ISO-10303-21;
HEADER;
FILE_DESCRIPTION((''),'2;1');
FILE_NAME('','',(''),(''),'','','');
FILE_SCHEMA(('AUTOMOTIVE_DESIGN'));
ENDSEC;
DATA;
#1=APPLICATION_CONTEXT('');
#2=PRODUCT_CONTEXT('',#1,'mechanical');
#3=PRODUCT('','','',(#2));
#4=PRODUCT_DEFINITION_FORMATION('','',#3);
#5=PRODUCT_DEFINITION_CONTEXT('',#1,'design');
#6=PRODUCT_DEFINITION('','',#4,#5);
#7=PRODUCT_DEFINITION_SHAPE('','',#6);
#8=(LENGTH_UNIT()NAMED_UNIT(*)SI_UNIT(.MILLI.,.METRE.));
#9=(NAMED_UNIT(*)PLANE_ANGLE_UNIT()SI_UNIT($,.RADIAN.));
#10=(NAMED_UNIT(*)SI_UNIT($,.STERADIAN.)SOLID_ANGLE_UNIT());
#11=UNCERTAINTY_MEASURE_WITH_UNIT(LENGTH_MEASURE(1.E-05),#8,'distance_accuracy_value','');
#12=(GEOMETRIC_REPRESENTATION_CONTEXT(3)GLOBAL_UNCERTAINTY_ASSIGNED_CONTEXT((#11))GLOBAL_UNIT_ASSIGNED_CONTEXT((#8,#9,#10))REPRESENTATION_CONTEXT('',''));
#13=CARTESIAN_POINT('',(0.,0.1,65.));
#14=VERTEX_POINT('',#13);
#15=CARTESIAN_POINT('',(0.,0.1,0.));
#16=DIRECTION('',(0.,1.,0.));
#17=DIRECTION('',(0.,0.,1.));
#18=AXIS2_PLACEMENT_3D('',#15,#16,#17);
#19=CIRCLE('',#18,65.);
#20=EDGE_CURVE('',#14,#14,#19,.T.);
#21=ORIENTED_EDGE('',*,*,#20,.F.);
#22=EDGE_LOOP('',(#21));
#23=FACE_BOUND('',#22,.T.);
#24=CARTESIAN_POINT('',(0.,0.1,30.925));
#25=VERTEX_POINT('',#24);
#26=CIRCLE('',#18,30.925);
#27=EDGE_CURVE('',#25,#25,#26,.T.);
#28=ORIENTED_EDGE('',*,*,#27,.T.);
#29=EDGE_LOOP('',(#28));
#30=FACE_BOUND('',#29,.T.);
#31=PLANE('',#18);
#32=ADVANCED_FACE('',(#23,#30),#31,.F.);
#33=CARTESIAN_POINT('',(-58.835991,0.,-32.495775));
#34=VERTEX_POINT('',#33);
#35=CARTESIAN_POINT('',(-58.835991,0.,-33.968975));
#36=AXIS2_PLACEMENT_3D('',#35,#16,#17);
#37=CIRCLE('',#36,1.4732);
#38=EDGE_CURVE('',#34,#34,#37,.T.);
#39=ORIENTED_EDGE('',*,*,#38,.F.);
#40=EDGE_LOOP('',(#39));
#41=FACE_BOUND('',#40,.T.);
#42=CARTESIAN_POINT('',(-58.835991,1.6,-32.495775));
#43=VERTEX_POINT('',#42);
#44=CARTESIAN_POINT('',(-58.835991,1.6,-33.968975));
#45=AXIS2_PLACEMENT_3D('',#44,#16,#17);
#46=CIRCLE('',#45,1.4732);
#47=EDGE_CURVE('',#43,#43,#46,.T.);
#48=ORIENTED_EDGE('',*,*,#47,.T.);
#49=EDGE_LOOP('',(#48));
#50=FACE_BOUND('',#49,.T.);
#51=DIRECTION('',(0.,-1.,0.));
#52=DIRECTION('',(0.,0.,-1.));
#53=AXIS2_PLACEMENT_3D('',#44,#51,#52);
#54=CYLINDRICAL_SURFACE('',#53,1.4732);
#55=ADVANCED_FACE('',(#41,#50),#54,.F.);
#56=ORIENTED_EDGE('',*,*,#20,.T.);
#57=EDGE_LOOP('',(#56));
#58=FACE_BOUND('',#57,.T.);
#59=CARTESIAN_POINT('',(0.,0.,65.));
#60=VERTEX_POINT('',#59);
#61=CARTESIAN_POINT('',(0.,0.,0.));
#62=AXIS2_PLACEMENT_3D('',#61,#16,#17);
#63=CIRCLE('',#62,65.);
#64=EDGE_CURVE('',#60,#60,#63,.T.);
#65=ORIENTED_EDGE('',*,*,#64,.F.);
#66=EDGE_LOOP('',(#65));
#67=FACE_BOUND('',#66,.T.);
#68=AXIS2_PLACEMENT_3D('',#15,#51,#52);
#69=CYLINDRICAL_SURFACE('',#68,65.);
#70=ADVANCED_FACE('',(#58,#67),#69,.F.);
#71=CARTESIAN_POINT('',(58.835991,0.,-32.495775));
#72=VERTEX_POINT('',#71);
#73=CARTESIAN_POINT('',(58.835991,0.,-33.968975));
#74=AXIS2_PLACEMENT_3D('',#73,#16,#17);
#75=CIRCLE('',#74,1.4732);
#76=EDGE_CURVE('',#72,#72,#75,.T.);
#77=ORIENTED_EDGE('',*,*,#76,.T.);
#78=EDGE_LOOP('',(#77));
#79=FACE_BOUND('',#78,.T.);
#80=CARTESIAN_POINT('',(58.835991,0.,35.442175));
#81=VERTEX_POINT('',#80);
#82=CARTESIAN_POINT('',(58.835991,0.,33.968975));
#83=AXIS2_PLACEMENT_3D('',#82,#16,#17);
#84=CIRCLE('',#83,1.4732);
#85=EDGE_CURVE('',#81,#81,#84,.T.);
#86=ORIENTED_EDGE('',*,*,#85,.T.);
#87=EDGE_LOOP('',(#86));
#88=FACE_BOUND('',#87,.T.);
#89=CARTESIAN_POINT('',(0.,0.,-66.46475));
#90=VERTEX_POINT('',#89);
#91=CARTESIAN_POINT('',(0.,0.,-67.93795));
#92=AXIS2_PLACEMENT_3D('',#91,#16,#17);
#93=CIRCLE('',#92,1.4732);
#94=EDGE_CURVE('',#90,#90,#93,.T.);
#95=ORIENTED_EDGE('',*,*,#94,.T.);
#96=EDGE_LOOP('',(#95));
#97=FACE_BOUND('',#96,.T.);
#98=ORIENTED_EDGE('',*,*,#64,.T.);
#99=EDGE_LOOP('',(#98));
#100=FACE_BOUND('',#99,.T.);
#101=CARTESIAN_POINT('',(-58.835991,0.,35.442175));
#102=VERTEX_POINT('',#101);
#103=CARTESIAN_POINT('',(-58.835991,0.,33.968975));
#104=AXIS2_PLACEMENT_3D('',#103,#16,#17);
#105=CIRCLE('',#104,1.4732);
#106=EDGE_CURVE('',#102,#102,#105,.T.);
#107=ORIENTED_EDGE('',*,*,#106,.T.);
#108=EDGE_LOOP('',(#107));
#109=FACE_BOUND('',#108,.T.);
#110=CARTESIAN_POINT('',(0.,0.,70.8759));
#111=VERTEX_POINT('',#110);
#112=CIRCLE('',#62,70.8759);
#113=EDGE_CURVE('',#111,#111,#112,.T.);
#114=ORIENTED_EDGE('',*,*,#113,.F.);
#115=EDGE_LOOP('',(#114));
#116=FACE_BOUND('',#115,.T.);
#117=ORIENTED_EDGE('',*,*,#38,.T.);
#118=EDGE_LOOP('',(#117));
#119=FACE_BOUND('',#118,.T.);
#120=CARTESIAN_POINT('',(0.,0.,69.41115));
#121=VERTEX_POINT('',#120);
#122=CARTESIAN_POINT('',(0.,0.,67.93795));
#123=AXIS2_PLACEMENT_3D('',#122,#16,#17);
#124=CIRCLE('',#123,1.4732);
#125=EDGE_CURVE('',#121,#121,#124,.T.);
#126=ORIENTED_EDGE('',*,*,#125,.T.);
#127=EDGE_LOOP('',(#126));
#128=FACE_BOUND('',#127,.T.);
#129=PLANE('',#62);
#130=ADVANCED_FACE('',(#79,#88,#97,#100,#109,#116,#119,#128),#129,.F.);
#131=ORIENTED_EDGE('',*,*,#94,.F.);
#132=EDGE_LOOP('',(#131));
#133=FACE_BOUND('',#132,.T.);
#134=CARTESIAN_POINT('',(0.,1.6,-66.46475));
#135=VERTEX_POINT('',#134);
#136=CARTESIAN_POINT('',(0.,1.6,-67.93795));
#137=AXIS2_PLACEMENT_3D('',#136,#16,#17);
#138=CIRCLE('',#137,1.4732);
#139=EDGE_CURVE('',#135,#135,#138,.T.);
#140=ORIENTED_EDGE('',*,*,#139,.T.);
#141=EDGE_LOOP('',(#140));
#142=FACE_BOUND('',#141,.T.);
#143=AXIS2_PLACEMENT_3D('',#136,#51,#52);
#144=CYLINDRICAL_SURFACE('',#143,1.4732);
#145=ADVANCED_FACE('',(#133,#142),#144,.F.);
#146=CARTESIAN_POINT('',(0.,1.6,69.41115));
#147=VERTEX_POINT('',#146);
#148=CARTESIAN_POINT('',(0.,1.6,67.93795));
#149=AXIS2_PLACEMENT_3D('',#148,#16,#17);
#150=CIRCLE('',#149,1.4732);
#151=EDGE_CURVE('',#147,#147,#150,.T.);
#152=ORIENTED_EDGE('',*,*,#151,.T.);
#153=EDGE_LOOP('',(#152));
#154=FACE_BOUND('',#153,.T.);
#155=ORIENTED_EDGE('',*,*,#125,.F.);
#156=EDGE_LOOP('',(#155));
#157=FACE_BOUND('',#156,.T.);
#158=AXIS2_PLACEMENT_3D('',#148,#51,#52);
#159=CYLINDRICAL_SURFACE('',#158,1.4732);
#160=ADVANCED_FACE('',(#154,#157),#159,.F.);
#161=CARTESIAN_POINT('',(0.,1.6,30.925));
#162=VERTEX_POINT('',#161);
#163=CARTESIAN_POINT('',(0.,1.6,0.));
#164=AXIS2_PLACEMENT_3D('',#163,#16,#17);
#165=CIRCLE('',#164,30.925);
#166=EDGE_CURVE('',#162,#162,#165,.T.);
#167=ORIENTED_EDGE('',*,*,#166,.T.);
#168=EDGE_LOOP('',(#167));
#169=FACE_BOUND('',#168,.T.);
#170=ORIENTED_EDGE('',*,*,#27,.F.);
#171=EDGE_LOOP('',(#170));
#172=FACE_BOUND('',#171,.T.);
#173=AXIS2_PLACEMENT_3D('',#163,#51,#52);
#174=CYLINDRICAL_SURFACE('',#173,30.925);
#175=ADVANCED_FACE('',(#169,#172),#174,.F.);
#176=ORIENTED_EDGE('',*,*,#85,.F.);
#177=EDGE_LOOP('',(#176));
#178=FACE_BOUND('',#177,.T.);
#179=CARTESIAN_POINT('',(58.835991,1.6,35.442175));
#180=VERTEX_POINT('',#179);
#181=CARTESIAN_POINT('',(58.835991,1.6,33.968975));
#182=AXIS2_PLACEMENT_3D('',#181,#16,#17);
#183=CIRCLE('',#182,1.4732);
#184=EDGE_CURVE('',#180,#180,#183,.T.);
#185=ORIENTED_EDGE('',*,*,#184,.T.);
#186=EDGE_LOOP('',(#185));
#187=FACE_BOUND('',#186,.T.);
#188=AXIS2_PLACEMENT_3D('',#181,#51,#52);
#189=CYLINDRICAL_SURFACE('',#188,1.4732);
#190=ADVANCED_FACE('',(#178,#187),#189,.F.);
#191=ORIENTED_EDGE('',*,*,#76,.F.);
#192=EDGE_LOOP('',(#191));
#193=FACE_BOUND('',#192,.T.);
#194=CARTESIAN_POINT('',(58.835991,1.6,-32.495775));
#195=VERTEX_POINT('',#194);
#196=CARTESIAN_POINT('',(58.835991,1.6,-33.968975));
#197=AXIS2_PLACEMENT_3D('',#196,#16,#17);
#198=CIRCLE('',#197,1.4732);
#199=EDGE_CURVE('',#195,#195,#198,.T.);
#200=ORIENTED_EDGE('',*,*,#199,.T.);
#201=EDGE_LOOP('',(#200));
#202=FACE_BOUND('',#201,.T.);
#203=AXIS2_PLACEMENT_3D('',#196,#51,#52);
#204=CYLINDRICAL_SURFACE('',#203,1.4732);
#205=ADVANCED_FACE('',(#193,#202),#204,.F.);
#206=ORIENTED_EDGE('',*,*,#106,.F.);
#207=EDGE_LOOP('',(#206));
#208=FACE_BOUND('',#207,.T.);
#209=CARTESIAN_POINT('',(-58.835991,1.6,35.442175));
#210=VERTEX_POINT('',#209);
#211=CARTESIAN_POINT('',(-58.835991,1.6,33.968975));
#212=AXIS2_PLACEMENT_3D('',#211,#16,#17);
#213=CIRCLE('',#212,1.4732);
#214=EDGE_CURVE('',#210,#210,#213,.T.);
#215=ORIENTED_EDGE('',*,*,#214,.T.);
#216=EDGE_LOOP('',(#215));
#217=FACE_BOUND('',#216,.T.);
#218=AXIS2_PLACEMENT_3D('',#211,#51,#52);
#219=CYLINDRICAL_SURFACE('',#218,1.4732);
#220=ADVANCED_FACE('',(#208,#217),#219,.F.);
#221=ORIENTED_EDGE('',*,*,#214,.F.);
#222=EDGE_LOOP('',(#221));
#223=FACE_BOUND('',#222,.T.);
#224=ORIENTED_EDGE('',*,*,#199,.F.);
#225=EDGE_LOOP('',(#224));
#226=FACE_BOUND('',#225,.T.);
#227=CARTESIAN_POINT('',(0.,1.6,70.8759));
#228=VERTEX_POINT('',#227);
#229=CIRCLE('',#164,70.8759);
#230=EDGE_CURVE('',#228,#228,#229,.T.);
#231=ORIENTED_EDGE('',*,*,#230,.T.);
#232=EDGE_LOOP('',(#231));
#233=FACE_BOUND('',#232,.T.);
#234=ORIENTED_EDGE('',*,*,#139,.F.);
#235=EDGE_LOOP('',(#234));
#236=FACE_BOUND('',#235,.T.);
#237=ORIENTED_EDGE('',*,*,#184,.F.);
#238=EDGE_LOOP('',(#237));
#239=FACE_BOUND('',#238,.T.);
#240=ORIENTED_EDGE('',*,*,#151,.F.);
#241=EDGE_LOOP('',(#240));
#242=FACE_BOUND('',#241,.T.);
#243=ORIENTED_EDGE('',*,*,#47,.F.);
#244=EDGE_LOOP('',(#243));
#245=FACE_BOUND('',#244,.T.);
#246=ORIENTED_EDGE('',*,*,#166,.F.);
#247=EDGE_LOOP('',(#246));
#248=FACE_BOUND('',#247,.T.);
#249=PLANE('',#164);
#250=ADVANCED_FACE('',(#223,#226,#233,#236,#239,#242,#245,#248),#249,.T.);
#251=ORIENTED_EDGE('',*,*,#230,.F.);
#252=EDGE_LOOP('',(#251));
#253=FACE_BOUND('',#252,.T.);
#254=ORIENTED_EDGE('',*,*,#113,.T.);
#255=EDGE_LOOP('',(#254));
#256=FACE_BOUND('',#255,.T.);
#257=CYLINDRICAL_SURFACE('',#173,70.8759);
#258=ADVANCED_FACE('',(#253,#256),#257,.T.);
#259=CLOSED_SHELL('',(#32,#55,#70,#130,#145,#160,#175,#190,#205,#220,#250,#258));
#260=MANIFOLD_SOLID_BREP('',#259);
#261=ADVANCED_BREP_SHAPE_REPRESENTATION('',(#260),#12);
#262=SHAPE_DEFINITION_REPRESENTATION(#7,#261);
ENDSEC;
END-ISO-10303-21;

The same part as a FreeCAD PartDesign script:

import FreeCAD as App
import Part
import Sketcher

doc = App.newDocument("Part")
body = doc.addObject("PartDesign::Body", "Body")

# Sketch on XZ plane
sketch1 = body.newObject("Sketcher::SketchObject", "Sketch")
sketch1.AttachmentSupport = (doc.getObject("XZ_Plane"), [""])
sketch1.MapMode = "FlatFace"
sketch1.addGeometry([
    Part.Circle(App.Vector(0, 0, 0), App.Vector(0, 0, 1), 70.9),  # 0
    Part.Circle(App.Vector(-58.8, -34, 0), App.Vector(0, 0, 1), 1.5),  # 1
    Part.Circle(App.Vector(0, -67.9, 0), App.Vector(0, 0, 1), 1.5),  # 2
    Part.Circle(App.Vector(-58.8, 34, 0), App.Vector(0, 0, 1), 1.5),  # 3
    Part.Circle(App.Vector(58.8, -34, 0), App.Vector(0, 0, 1), 1.5),  # 4
    Part.Circle(App.Vector(0, 67.9, 0), App.Vector(0, 0, 1), 1.5),  # 5
    Part.Circle(App.Vector(58.8, 34, 0), App.Vector(0, 0, 1), 1.5),  # 6
    Part.Circle(App.Vector(0, 0, 0), App.Vector(0, 0, 1), 30.9),  # 7
], False)
sketch1.addConstraint([
    Sketcher.Constraint("Coincident", 0, 3, -1, 1),
    Sketcher.Constraint("Coincident", 7, 3, -1, 1),
    Sketcher.Constraint("Equal", 1, 2),
    Sketcher.Constraint("Equal", 2, 3),
    Sketcher.Constraint("Equal", 3, 4),
    Sketcher.Constraint("Equal", 4, 5),
    Sketcher.Constraint("Equal", 5, 6),
    Sketcher.Constraint("Symmetric", 3, 3, 4, 3, -1, 1),
    Sketcher.Constraint("Symmetric", 2, 3, 5, 3, -1, 1),
    Sketcher.Constraint("Symmetric", 1, 3, 6, 3, -1, 1),
    Sketcher.Constraint("Symmetric", 1, 3, 4, 3, -2),
    Sketcher.Constraint("PointOnObject", 2, 3, -2),
    Sketcher.Constraint("Diameter", 7, 61.85),
    Sketcher.Constraint("Diameter", 0, 141.7518),
    Sketcher.Constraint("Diameter", 1, 2.9464),
    Sketcher.Constraint("DistanceY", 2, 3, 5, 3, 135.8759),
    Sketcher.Constraint("DistanceX", 1, 3, -1, 1, 58.835991),
    Sketcher.Constraint("DistanceY", 1, 3, 3, 3, 67.93795),
])
pad1 = body.newObject("PartDesign::Pad", "Pad")
pad1.Profile = sketch1
pad1.Length = 1.6
pad1.Reversed = True

# Sketch on XZ plane
sketch2 = body.newObject("Sketcher::SketchObject", "Sketch001")
sketch2.AttachmentSupport = (doc.getObject("XZ_Plane"), [""])
sketch2.MapMode = "FlatFace"
sketch2.addGeometry([
    Part.Circle(App.Vector(0, 0, 0), App.Vector(0, 0, 1), 65),
    Part.Circle(App.Vector(0, 0, 0), App.Vector(0, 0, 1), 31),
], False)
sketch2.addConstraint([
    Sketcher.Constraint("Coincident", 0, 3, -1, 1),
    Sketcher.Constraint("Coincident", 1, 3, -1, 1),
    Sketcher.Constraint("Diameter", 0, 130.0),
    Sketcher.Constraint("Diameter", 1, 61.85),
])
pocket1 = body.newObject("PartDesign::Pocket", "Pocket")
pocket1.Profile = sketch2
pocket1.Length = 0.1

doc.recompute()
